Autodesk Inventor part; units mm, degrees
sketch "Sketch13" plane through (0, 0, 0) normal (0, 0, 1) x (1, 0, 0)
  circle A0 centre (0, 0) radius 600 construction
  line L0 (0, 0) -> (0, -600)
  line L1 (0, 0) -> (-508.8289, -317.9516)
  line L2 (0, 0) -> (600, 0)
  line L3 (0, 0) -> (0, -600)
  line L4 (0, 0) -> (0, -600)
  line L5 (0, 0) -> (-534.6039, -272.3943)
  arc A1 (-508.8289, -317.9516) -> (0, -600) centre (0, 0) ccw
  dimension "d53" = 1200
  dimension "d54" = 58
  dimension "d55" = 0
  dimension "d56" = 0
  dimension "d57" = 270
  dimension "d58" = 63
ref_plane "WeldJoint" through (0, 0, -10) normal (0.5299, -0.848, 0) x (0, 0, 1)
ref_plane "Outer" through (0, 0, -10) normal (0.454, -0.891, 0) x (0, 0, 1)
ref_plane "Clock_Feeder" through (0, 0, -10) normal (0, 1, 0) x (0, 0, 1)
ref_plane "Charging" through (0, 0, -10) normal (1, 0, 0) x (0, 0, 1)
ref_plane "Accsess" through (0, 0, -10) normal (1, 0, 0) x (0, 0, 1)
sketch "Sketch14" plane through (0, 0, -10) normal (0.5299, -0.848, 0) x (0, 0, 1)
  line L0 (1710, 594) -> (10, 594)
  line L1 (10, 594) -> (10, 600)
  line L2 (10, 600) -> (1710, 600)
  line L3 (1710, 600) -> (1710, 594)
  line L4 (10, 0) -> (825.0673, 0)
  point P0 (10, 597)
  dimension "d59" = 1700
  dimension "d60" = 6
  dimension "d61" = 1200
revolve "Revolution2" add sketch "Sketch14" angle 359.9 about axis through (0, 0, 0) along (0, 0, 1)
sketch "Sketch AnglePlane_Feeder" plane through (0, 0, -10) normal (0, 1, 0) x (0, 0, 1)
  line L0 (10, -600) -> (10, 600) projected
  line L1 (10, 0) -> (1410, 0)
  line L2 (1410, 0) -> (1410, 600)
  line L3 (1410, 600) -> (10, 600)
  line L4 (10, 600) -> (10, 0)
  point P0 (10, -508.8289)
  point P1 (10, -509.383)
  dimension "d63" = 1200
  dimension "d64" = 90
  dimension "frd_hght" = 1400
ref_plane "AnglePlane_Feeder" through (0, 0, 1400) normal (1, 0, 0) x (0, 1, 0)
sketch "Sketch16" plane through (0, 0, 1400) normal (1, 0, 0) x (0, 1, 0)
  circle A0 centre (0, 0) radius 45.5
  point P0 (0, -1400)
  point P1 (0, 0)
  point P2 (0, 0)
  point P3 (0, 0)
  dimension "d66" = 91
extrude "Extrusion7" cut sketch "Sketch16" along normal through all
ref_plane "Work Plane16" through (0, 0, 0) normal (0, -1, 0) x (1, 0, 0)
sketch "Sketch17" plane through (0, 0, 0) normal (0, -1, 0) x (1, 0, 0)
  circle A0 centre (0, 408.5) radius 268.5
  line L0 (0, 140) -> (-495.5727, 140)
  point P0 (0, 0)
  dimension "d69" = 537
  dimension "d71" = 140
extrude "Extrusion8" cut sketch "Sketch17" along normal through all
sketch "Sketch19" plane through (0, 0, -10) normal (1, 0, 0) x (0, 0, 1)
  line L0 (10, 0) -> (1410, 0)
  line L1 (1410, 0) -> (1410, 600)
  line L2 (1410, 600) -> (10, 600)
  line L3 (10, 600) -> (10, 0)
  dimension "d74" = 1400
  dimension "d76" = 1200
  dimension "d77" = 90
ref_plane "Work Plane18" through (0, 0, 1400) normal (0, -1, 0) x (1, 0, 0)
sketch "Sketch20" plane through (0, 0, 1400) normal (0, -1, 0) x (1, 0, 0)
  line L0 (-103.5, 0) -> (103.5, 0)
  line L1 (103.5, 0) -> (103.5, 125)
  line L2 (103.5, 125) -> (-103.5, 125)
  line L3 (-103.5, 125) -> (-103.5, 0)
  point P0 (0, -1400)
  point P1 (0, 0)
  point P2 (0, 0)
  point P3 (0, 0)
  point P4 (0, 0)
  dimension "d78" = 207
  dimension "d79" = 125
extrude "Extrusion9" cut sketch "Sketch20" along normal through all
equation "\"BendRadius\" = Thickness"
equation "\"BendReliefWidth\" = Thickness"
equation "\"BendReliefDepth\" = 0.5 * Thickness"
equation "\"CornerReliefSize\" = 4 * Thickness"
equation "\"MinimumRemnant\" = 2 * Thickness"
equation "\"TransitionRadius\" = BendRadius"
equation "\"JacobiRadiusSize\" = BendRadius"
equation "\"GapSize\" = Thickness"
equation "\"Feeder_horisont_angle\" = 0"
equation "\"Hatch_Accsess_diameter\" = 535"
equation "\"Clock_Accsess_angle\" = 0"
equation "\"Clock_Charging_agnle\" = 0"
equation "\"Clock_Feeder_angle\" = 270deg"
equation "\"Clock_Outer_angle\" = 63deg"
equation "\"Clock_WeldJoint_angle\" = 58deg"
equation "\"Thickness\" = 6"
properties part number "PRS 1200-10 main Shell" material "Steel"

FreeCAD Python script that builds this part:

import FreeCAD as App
import Part
import Sketcher
from FreeCAD import Vector


def add_polygon(sketch, points):
    """Adds a closed chain of lines whose ends are joined by coincident constraints."""
    first, n = sketch.GeometryCount, len(points)
    for a, b in zip(points, points[1:] + points[:1]):
        sketch.addGeometry(Part.LineSegment(App.Vector(*a, 0), App.Vector(*b, 0)), False)
    for i in range(n):
        sketch.addConstraint(Sketcher.Constraint("Coincident", first + i, 2, first + (i + 1) % n, 1))

doc = App.newDocument("Part")
body = doc.addObject("PartDesign::Body", "Body")

# Sketch on an angled plane
sketch1 = body.newObject("Sketcher::SketchObject", "Sketch")
sketch1.Placement = App.Placement(Vector(0, 0, -10), App.Rotation(Vector(0, 0, 1), Vector(-0.848048096, -0.529919264, 0), Vector(0.529919264, -0.848048096, 0), "ZXY"))
add_polygon(sketch1, [(10, 594), (1710, 594), (1710, 600), (10, 600)])  # lines 0-3
sketch1.addConstraint([
    Sketcher.Constraint("Horizontal", 0),
    Sketcher.Constraint("Vertical", 1),
    Sketcher.Constraint("Horizontal", 2),
    Sketcher.Constraint("Vertical", 3),
    Sketcher.Constraint("DistanceX", 0, 1, 0, 2, 1700.0),
    Sketcher.Constraint("DistanceY", 1, 1, 1, 2, 6.0),
    Sketcher.Constraint("DistanceX", -1, 1, 0, 2, 1710.0),
    Sketcher.Constraint("DistanceY", -1, 1, 0, 2, 594.0),
])
revolution = body.newObject("PartDesign::Revolution", "Revolution")
revolution.Profile = sketch1
revolution.ReferenceAxis = (sketch1, ["H_Axis"])
revolution.Angle = 359.9

# Sketch on YZ plane
sketch2 = body.newObject("Sketcher::SketchObject", "Sketch001")
sketch2.AttachmentSupport = (doc.getObject("YZ_Plane"), [""])
sketch2.MapMode = "FlatFace"
sketch2.addGeometry(Part.Circle(Vector(0, 1400, 0), Vector(0, 0, 1), 46), False)
sketch2.addConstraint([
    Sketcher.Constraint("PointOnObject", 0, 3, -2),
    Sketcher.Constraint("Diameter", 0, 91.0),
    Sketcher.Constraint("DistanceY", -1, 1, 0, 3, 1400.0),
])
pocket1 = body.newObject("PartDesign::Pocket", "Pocket")
pocket1.Profile = sketch2
pocket1.Type = "ThroughAll"
pocket1.Reversed = True

# Sketch on XZ plane
sketch3 = body.newObject("Sketcher::SketchObject", "Sketch002")
sketch3.AttachmentSupport = (doc.getObject("XZ_Plane"), [""])
sketch3.MapMode = "FlatFace"
sketch3.addGeometry(Part.Circle(Vector(0, 408, 0), Vector(0, 0, 1), 268), False)
sketch3.addConstraint([
    Sketcher.Constraint("PointOnObject", 0, 3, -2),
    Sketcher.Constraint("Diameter", 0, 537.0),
    Sketcher.Constraint("DistanceY", -1, 1, 0, 3, 408.5),
])
pocket2 = body.newObject("PartDesign::Pocket", "Pocket001")
pocket2.Profile = sketch3
pocket2.Type = "ThroughAll"
pocket2.Reversed = True

# Sketch on XZ plane
sketch4 = body.newObject("Sketcher::SketchObject", "Sketch003")
sketch4.AttachmentSupport = (doc.getObject("XZ_Plane"), [""])
sketch4.MapMode = "FlatFace"
add_polygon(sketch4, [(-104, 1525), (-104, 1400), (104, 1400), (104, 1525)])  # lines 0-3
sketch4.addConstraint([
    Sketcher.Constraint("Vertical", 0),
    Sketcher.Constraint("Horizontal", 1),
    Sketcher.Constraint("Vertical", 2),
    Sketcher.Constraint("Horizontal", 3),
    Sketcher.Constraint("DistanceX", 1, 1, 1, 2, 207.0),
    Sketcher.Constraint("DistanceY", 0, 2, 0, 1, 125.0),
    Sketcher.Constraint("DistanceY", -1, 1, 0, 2, 1400.0),
    Sketcher.Constraint("DistanceX", 0, 2, -1, 1, 103.5),
])
pocket3 = body.newObject("PartDesign::Pocket", "Pocket002")
pocket3.Profile = sketch4
pocket3.Type = "ThroughAll"
pocket3.Reversed = True

doc.recompute()
